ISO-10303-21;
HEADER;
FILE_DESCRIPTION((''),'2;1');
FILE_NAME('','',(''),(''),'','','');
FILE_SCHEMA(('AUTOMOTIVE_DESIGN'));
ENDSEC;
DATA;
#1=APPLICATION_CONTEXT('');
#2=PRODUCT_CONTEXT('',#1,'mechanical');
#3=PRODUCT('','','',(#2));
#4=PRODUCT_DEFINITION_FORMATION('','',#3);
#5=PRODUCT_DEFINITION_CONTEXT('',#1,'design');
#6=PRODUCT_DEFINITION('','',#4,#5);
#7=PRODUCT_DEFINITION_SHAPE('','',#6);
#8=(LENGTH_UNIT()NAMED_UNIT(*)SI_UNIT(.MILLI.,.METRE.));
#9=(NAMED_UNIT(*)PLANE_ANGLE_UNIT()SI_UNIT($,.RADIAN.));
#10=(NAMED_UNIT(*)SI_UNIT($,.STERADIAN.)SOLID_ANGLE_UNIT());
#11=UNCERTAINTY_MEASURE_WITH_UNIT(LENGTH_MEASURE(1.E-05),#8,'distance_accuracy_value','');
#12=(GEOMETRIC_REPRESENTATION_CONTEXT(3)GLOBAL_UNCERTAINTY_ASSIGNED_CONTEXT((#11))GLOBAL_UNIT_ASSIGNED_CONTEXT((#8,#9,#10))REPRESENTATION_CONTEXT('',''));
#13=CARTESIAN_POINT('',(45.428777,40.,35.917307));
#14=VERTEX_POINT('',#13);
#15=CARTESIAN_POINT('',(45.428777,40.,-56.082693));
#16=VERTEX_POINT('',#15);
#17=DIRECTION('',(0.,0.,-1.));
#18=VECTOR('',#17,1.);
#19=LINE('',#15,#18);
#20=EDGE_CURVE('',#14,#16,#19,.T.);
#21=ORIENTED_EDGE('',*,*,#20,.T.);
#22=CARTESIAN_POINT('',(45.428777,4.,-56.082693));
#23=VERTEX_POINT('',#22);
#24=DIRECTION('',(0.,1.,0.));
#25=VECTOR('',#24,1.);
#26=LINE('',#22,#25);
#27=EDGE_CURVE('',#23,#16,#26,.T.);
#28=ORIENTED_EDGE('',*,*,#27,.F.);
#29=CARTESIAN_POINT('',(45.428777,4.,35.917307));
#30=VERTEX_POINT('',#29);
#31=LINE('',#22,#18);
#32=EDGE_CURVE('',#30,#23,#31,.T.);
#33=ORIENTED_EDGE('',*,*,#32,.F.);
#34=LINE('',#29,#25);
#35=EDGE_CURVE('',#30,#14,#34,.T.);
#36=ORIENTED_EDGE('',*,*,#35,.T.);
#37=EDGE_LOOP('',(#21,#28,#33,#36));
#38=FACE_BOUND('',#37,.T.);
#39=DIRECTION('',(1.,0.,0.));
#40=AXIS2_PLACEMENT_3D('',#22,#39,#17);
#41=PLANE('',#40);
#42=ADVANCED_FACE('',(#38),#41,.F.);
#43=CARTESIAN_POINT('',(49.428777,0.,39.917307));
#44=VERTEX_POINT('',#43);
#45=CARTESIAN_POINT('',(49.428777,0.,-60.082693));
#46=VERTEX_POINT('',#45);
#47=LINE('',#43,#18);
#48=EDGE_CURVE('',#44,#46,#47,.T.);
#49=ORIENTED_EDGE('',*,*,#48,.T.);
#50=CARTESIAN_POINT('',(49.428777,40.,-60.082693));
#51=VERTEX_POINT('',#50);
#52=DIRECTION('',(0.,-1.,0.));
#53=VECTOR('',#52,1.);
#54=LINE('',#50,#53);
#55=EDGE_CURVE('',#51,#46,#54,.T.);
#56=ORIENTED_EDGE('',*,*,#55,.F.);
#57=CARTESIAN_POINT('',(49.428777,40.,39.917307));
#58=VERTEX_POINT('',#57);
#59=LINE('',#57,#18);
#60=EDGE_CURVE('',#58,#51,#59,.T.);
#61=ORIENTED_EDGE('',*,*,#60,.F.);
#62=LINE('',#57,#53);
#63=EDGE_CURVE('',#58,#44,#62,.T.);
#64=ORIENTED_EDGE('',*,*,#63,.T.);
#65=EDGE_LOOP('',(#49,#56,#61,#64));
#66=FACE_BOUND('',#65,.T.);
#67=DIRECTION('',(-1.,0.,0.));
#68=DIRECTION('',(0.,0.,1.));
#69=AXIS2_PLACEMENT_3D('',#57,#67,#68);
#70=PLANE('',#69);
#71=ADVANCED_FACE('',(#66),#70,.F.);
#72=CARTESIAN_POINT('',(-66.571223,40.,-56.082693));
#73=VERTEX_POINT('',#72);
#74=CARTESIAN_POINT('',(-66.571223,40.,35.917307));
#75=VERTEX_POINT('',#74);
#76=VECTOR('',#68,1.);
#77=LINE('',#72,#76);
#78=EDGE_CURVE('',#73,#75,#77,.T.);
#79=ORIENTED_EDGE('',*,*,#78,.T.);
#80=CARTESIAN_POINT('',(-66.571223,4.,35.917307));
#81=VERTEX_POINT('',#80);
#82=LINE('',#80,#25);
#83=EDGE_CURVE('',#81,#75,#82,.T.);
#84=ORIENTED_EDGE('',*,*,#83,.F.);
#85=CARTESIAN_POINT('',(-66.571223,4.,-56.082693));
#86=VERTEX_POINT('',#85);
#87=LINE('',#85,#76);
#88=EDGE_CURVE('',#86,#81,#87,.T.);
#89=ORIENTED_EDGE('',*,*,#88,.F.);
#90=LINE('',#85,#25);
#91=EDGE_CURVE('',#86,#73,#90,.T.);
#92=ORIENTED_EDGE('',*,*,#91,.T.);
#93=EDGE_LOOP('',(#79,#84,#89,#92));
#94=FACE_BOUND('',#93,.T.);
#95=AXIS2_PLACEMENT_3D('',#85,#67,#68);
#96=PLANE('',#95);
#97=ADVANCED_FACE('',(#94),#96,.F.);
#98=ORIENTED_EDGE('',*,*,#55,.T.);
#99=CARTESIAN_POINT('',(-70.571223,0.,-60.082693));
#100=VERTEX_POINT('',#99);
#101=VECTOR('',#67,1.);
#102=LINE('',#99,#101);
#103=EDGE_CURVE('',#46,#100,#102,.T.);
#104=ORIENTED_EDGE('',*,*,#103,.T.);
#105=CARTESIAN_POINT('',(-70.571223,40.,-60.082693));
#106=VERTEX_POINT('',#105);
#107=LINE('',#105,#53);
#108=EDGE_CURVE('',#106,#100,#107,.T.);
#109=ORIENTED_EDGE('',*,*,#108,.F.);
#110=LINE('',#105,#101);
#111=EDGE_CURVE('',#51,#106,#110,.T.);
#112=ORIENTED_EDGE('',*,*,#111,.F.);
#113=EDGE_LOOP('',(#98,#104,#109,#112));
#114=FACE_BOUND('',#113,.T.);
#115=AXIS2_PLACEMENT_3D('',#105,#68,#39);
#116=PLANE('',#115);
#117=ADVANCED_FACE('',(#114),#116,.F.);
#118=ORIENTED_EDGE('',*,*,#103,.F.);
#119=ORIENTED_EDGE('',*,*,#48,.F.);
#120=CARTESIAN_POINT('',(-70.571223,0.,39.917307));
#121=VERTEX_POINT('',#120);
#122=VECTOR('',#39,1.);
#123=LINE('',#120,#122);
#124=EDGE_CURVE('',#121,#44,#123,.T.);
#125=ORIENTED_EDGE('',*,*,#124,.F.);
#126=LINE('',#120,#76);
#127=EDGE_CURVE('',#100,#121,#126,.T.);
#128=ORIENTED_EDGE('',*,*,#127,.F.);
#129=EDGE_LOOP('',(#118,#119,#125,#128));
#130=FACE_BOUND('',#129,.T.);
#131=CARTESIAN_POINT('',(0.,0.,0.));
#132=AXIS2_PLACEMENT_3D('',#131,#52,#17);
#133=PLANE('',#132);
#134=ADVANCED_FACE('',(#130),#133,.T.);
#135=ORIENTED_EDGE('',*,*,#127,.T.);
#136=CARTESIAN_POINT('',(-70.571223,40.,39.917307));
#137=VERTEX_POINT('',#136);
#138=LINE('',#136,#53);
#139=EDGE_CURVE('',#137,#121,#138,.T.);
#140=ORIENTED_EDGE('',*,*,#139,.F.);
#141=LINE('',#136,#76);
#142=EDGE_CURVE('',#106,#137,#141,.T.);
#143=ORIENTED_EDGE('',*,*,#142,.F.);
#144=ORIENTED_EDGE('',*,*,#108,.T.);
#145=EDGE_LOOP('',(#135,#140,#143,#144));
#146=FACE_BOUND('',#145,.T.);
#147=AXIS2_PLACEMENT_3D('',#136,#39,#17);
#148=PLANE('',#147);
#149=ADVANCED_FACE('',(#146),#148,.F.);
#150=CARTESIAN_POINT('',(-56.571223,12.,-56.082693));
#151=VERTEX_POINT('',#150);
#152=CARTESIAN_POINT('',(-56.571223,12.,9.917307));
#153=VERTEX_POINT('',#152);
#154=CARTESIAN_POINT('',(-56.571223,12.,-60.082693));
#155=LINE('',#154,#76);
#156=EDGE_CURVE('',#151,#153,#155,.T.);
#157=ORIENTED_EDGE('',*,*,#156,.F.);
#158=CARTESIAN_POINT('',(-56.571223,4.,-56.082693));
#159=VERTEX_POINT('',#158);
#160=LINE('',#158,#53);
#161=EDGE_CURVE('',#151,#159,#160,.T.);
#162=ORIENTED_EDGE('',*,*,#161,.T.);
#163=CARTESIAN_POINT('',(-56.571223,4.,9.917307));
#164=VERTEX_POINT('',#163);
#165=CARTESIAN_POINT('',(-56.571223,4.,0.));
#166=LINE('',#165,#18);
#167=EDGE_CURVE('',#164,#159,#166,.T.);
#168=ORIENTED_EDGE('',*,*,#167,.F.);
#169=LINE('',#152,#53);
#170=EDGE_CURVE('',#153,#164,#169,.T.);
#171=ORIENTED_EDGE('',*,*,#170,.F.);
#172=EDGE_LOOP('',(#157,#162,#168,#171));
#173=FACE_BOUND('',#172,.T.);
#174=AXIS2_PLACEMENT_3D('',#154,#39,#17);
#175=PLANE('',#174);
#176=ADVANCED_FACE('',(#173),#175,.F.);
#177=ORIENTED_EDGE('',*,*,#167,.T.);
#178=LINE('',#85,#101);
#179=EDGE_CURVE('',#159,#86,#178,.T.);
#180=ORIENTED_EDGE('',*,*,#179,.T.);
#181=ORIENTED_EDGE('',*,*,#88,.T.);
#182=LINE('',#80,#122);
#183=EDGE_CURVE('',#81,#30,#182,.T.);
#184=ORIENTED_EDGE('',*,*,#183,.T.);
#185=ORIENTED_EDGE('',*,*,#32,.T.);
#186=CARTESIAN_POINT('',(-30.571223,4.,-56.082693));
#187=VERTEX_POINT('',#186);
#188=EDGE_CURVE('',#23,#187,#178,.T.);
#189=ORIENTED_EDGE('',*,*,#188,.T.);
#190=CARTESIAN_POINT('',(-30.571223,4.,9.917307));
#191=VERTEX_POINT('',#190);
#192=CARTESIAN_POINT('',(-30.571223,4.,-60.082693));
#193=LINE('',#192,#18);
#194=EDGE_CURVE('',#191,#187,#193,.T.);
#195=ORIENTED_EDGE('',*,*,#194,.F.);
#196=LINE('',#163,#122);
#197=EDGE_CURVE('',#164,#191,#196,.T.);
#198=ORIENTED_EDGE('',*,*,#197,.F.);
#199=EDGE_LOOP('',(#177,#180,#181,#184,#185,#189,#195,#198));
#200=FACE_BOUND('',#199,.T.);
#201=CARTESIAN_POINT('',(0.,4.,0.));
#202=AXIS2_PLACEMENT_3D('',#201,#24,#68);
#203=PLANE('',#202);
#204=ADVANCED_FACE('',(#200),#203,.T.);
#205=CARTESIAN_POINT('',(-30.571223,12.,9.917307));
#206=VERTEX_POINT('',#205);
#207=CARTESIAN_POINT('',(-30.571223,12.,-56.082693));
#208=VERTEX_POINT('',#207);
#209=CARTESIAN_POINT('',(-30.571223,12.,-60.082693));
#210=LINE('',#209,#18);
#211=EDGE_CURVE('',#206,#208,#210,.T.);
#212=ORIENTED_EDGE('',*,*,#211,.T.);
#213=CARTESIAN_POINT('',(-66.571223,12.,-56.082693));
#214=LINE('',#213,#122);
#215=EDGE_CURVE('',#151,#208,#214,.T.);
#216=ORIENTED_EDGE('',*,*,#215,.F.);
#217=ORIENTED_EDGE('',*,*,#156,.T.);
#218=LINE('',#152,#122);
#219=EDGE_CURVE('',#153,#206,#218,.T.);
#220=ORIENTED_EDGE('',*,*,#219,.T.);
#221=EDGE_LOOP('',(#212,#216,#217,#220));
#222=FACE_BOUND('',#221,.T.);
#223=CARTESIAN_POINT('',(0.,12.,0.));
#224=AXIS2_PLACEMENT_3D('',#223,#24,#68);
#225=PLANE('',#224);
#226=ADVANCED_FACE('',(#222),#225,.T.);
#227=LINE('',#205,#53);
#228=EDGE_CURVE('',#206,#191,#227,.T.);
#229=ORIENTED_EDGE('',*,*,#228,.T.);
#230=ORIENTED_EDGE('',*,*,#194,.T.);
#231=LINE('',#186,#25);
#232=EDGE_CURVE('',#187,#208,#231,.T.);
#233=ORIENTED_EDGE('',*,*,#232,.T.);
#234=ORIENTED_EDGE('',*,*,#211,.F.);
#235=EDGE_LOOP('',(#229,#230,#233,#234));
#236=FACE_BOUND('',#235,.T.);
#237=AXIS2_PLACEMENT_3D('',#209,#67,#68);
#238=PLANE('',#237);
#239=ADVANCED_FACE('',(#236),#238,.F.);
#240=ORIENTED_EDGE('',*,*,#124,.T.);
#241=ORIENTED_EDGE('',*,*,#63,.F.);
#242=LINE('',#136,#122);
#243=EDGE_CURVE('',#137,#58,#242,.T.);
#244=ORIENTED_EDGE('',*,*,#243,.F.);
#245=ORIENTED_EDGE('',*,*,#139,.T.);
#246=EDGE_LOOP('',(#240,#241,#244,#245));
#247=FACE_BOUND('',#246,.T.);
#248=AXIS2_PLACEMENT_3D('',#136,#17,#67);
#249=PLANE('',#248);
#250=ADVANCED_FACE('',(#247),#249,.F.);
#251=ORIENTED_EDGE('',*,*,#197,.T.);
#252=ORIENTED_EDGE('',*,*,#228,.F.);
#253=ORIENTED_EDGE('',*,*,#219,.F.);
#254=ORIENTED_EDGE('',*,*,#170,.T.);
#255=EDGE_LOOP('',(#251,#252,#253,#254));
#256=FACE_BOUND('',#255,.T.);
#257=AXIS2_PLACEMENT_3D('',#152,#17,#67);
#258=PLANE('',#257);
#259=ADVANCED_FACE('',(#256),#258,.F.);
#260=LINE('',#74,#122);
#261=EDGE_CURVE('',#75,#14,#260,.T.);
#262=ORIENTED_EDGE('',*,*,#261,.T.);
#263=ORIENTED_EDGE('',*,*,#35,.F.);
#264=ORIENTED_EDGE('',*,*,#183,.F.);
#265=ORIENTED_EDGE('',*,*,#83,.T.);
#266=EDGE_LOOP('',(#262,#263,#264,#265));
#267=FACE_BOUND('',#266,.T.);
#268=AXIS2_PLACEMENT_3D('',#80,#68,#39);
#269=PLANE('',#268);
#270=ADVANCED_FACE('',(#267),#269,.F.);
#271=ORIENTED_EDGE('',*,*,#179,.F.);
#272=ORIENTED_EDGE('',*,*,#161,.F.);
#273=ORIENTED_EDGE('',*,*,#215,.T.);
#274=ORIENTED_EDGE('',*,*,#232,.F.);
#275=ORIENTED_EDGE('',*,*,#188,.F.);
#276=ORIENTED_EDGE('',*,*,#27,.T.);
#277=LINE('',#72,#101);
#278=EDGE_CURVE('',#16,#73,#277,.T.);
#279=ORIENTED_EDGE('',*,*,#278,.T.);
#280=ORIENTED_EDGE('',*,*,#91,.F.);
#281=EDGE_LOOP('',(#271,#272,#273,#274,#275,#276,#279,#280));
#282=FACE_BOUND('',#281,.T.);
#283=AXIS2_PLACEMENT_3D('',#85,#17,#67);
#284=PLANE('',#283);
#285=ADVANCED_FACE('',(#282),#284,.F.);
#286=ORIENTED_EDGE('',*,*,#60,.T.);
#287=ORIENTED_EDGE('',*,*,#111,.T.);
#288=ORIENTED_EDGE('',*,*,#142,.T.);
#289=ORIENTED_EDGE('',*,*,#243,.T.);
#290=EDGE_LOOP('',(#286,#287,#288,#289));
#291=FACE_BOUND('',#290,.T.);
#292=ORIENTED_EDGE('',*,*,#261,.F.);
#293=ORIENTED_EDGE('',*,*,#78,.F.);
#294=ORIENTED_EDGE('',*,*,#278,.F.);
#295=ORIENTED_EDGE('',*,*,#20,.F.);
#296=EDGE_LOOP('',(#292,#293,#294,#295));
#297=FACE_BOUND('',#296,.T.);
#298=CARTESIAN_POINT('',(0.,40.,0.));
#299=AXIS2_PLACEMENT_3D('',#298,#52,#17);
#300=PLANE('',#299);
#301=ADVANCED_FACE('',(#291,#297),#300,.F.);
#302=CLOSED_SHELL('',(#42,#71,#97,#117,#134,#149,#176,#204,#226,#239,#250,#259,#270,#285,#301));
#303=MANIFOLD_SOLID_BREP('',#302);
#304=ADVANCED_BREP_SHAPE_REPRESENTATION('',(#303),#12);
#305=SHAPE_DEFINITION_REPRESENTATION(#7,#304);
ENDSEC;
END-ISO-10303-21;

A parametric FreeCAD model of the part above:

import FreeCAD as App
import Part
import Sketcher
from FreeCAD import Vector
Q = App.Units.Quantity


def add_polygon(sketch, points):
    """Adds a closed chain of lines whose ends are joined by coincident constraints."""
    first, n = sketch.GeometryCount, len(points)
    for a, b in zip(points, points[1:] + points[:1]):
        sketch.addGeometry(Part.LineSegment(App.Vector(*a, 0), App.Vector(*b, 0)), False)
    for i in range(n):
        sketch.addConstraint(Sketcher.Constraint("Coincident", first + i, 2, first + (i + 1) % n, 1))

doc = App.newDocument("Part")
body = doc.addObject("PartDesign::Body", "Body")

# Sketch on XZ plane
sketch1 = body.newObject("Sketcher::SketchObject", "Sketch")
sketch1.AttachmentSupport = (doc.getObject("XZ_Plane"), [""])
sketch1.MapMode = "FlatFace"
add_polygon(sketch1, [(-71, -60), (-71, 40), (49, 40), (49, -60)])  # lines 0-3
sketch1.addConstraint(Sketcher.Constraint("Vertical", 0))
sketch1.addConstraint(Sketcher.Constraint("Horizontal", 1))
sketch1.addConstraint(Sketcher.Constraint("Vertical", 2))
sketch1.addConstraint(Sketcher.Constraint("Horizontal", 3))
sketch1.addConstraint(Sketcher.Constraint("DistanceX", 1, 1, 1, 2, Q("120 mm")))
sketch1.addConstraint(Sketcher.Constraint("DistanceY", 0, 1, 0, 2, Q("100 mm")))
sketch1.addConstraint(Sketcher.Constraint("DistanceX", 0, 2, -1, 1, Q("70.571223 mm")))
sketch1.addConstraint(Sketcher.Constraint("DistanceY", -1, 1, 0, 2, Q("39.917307 mm")))
pad1 = body.newObject("PartDesign::Pad", "Pad")
pad1.Profile = sketch1
pad1.Length = 40
pad1.Reversed = True

# Sketch on XZ plane
sketch2 = body.newObject("Sketcher::SketchObject", "Sketch001")
sketch2.AttachmentSupport = (doc.getObject("XZ_Plane"), [""])
sketch2.MapMode = "FlatFace"
sketch2.AttachmentOffset = App.Placement(Vector(0, 0, -40), App.Rotation())
add_polygon(sketch2, [(-67, -56), (-67, 36), (45, 36), (45, -56)])  # lines 0-3
sketch2.addConstraint(Sketcher.Constraint("Vertical", 0))
sketch2.addConstraint(Sketcher.Constraint("Horizontal", 1))
sketch2.addConstraint(Sketcher.Constraint("Vertical", 2))
sketch2.addConstraint(Sketcher.Constraint("Horizontal", 3))
sketch2.addConstraint(Sketcher.Constraint("DistanceX", 1, 1, 1, 2, Q("112 mm")))
sketch2.addConstraint(Sketcher.Constraint("DistanceY", 0, 1, 0, 2, Q("92 mm")))
sketch2.addConstraint(Sketcher.Constraint("DistanceX", 0, 2, -1, 1, Q("66.571223 mm")))
sketch2.addConstraint(Sketcher.Constraint("DistanceY", -1, 1, 0, 2, Q("35.917307 mm")))
pocket1 = body.newObject("PartDesign::Pocket", "Pocket")
pocket1.Profile = sketch2
pocket1.Length = 36
pocket1.Reversed = True

# Sketch on XZ plane
sketch3 = body.newObject("Sketcher::SketchObject", "Sketch002")
sketch3.AttachmentSupport = (doc.getObject("XZ_Plane"), [""])
sketch3.MapMode = "FlatFace"
sketch3.AttachmentOffset = App.Placement(Vector(0, 0, -4), App.Rotation())
add_polygon(sketch3, [(-57, -60), (-57, 10), (-31, 10), (-31, -60)])  # lines 0-3
sketch3.addConstraint(Sketcher.Constraint("Vertical", 0))
sketch3.addConstraint(Sketcher.Constraint("Horizontal", 1))
sketch3.addConstraint(Sketcher.Constraint("Vertical", 2))
sketch3.addConstraint(Sketcher.Constraint("Horizontal", 3))
sketch3.addConstraint(Sketcher.Constraint("DistanceX", 1, 1, 1, 2, Q("26 mm")))
sketch3.addConstraint(Sketcher.Constraint("DistanceY", 0, 1, 0, 2, Q("70 mm")))
sketch3.addConstraint(Sketcher.Constraint("DistanceX", 0, 2, -1, 1, Q("56.571223 mm")))
sketch3.addConstraint(Sketcher.Constraint("DistanceY", -1, 1, 0, 2, Q("9.917307 mm")))
pad2 = body.newObject("PartDesign::Pad", "Pad001")
pad2.Profile = sketch3
pad2.Length = 8
pad2.Reversed = True

doc.recompute()
